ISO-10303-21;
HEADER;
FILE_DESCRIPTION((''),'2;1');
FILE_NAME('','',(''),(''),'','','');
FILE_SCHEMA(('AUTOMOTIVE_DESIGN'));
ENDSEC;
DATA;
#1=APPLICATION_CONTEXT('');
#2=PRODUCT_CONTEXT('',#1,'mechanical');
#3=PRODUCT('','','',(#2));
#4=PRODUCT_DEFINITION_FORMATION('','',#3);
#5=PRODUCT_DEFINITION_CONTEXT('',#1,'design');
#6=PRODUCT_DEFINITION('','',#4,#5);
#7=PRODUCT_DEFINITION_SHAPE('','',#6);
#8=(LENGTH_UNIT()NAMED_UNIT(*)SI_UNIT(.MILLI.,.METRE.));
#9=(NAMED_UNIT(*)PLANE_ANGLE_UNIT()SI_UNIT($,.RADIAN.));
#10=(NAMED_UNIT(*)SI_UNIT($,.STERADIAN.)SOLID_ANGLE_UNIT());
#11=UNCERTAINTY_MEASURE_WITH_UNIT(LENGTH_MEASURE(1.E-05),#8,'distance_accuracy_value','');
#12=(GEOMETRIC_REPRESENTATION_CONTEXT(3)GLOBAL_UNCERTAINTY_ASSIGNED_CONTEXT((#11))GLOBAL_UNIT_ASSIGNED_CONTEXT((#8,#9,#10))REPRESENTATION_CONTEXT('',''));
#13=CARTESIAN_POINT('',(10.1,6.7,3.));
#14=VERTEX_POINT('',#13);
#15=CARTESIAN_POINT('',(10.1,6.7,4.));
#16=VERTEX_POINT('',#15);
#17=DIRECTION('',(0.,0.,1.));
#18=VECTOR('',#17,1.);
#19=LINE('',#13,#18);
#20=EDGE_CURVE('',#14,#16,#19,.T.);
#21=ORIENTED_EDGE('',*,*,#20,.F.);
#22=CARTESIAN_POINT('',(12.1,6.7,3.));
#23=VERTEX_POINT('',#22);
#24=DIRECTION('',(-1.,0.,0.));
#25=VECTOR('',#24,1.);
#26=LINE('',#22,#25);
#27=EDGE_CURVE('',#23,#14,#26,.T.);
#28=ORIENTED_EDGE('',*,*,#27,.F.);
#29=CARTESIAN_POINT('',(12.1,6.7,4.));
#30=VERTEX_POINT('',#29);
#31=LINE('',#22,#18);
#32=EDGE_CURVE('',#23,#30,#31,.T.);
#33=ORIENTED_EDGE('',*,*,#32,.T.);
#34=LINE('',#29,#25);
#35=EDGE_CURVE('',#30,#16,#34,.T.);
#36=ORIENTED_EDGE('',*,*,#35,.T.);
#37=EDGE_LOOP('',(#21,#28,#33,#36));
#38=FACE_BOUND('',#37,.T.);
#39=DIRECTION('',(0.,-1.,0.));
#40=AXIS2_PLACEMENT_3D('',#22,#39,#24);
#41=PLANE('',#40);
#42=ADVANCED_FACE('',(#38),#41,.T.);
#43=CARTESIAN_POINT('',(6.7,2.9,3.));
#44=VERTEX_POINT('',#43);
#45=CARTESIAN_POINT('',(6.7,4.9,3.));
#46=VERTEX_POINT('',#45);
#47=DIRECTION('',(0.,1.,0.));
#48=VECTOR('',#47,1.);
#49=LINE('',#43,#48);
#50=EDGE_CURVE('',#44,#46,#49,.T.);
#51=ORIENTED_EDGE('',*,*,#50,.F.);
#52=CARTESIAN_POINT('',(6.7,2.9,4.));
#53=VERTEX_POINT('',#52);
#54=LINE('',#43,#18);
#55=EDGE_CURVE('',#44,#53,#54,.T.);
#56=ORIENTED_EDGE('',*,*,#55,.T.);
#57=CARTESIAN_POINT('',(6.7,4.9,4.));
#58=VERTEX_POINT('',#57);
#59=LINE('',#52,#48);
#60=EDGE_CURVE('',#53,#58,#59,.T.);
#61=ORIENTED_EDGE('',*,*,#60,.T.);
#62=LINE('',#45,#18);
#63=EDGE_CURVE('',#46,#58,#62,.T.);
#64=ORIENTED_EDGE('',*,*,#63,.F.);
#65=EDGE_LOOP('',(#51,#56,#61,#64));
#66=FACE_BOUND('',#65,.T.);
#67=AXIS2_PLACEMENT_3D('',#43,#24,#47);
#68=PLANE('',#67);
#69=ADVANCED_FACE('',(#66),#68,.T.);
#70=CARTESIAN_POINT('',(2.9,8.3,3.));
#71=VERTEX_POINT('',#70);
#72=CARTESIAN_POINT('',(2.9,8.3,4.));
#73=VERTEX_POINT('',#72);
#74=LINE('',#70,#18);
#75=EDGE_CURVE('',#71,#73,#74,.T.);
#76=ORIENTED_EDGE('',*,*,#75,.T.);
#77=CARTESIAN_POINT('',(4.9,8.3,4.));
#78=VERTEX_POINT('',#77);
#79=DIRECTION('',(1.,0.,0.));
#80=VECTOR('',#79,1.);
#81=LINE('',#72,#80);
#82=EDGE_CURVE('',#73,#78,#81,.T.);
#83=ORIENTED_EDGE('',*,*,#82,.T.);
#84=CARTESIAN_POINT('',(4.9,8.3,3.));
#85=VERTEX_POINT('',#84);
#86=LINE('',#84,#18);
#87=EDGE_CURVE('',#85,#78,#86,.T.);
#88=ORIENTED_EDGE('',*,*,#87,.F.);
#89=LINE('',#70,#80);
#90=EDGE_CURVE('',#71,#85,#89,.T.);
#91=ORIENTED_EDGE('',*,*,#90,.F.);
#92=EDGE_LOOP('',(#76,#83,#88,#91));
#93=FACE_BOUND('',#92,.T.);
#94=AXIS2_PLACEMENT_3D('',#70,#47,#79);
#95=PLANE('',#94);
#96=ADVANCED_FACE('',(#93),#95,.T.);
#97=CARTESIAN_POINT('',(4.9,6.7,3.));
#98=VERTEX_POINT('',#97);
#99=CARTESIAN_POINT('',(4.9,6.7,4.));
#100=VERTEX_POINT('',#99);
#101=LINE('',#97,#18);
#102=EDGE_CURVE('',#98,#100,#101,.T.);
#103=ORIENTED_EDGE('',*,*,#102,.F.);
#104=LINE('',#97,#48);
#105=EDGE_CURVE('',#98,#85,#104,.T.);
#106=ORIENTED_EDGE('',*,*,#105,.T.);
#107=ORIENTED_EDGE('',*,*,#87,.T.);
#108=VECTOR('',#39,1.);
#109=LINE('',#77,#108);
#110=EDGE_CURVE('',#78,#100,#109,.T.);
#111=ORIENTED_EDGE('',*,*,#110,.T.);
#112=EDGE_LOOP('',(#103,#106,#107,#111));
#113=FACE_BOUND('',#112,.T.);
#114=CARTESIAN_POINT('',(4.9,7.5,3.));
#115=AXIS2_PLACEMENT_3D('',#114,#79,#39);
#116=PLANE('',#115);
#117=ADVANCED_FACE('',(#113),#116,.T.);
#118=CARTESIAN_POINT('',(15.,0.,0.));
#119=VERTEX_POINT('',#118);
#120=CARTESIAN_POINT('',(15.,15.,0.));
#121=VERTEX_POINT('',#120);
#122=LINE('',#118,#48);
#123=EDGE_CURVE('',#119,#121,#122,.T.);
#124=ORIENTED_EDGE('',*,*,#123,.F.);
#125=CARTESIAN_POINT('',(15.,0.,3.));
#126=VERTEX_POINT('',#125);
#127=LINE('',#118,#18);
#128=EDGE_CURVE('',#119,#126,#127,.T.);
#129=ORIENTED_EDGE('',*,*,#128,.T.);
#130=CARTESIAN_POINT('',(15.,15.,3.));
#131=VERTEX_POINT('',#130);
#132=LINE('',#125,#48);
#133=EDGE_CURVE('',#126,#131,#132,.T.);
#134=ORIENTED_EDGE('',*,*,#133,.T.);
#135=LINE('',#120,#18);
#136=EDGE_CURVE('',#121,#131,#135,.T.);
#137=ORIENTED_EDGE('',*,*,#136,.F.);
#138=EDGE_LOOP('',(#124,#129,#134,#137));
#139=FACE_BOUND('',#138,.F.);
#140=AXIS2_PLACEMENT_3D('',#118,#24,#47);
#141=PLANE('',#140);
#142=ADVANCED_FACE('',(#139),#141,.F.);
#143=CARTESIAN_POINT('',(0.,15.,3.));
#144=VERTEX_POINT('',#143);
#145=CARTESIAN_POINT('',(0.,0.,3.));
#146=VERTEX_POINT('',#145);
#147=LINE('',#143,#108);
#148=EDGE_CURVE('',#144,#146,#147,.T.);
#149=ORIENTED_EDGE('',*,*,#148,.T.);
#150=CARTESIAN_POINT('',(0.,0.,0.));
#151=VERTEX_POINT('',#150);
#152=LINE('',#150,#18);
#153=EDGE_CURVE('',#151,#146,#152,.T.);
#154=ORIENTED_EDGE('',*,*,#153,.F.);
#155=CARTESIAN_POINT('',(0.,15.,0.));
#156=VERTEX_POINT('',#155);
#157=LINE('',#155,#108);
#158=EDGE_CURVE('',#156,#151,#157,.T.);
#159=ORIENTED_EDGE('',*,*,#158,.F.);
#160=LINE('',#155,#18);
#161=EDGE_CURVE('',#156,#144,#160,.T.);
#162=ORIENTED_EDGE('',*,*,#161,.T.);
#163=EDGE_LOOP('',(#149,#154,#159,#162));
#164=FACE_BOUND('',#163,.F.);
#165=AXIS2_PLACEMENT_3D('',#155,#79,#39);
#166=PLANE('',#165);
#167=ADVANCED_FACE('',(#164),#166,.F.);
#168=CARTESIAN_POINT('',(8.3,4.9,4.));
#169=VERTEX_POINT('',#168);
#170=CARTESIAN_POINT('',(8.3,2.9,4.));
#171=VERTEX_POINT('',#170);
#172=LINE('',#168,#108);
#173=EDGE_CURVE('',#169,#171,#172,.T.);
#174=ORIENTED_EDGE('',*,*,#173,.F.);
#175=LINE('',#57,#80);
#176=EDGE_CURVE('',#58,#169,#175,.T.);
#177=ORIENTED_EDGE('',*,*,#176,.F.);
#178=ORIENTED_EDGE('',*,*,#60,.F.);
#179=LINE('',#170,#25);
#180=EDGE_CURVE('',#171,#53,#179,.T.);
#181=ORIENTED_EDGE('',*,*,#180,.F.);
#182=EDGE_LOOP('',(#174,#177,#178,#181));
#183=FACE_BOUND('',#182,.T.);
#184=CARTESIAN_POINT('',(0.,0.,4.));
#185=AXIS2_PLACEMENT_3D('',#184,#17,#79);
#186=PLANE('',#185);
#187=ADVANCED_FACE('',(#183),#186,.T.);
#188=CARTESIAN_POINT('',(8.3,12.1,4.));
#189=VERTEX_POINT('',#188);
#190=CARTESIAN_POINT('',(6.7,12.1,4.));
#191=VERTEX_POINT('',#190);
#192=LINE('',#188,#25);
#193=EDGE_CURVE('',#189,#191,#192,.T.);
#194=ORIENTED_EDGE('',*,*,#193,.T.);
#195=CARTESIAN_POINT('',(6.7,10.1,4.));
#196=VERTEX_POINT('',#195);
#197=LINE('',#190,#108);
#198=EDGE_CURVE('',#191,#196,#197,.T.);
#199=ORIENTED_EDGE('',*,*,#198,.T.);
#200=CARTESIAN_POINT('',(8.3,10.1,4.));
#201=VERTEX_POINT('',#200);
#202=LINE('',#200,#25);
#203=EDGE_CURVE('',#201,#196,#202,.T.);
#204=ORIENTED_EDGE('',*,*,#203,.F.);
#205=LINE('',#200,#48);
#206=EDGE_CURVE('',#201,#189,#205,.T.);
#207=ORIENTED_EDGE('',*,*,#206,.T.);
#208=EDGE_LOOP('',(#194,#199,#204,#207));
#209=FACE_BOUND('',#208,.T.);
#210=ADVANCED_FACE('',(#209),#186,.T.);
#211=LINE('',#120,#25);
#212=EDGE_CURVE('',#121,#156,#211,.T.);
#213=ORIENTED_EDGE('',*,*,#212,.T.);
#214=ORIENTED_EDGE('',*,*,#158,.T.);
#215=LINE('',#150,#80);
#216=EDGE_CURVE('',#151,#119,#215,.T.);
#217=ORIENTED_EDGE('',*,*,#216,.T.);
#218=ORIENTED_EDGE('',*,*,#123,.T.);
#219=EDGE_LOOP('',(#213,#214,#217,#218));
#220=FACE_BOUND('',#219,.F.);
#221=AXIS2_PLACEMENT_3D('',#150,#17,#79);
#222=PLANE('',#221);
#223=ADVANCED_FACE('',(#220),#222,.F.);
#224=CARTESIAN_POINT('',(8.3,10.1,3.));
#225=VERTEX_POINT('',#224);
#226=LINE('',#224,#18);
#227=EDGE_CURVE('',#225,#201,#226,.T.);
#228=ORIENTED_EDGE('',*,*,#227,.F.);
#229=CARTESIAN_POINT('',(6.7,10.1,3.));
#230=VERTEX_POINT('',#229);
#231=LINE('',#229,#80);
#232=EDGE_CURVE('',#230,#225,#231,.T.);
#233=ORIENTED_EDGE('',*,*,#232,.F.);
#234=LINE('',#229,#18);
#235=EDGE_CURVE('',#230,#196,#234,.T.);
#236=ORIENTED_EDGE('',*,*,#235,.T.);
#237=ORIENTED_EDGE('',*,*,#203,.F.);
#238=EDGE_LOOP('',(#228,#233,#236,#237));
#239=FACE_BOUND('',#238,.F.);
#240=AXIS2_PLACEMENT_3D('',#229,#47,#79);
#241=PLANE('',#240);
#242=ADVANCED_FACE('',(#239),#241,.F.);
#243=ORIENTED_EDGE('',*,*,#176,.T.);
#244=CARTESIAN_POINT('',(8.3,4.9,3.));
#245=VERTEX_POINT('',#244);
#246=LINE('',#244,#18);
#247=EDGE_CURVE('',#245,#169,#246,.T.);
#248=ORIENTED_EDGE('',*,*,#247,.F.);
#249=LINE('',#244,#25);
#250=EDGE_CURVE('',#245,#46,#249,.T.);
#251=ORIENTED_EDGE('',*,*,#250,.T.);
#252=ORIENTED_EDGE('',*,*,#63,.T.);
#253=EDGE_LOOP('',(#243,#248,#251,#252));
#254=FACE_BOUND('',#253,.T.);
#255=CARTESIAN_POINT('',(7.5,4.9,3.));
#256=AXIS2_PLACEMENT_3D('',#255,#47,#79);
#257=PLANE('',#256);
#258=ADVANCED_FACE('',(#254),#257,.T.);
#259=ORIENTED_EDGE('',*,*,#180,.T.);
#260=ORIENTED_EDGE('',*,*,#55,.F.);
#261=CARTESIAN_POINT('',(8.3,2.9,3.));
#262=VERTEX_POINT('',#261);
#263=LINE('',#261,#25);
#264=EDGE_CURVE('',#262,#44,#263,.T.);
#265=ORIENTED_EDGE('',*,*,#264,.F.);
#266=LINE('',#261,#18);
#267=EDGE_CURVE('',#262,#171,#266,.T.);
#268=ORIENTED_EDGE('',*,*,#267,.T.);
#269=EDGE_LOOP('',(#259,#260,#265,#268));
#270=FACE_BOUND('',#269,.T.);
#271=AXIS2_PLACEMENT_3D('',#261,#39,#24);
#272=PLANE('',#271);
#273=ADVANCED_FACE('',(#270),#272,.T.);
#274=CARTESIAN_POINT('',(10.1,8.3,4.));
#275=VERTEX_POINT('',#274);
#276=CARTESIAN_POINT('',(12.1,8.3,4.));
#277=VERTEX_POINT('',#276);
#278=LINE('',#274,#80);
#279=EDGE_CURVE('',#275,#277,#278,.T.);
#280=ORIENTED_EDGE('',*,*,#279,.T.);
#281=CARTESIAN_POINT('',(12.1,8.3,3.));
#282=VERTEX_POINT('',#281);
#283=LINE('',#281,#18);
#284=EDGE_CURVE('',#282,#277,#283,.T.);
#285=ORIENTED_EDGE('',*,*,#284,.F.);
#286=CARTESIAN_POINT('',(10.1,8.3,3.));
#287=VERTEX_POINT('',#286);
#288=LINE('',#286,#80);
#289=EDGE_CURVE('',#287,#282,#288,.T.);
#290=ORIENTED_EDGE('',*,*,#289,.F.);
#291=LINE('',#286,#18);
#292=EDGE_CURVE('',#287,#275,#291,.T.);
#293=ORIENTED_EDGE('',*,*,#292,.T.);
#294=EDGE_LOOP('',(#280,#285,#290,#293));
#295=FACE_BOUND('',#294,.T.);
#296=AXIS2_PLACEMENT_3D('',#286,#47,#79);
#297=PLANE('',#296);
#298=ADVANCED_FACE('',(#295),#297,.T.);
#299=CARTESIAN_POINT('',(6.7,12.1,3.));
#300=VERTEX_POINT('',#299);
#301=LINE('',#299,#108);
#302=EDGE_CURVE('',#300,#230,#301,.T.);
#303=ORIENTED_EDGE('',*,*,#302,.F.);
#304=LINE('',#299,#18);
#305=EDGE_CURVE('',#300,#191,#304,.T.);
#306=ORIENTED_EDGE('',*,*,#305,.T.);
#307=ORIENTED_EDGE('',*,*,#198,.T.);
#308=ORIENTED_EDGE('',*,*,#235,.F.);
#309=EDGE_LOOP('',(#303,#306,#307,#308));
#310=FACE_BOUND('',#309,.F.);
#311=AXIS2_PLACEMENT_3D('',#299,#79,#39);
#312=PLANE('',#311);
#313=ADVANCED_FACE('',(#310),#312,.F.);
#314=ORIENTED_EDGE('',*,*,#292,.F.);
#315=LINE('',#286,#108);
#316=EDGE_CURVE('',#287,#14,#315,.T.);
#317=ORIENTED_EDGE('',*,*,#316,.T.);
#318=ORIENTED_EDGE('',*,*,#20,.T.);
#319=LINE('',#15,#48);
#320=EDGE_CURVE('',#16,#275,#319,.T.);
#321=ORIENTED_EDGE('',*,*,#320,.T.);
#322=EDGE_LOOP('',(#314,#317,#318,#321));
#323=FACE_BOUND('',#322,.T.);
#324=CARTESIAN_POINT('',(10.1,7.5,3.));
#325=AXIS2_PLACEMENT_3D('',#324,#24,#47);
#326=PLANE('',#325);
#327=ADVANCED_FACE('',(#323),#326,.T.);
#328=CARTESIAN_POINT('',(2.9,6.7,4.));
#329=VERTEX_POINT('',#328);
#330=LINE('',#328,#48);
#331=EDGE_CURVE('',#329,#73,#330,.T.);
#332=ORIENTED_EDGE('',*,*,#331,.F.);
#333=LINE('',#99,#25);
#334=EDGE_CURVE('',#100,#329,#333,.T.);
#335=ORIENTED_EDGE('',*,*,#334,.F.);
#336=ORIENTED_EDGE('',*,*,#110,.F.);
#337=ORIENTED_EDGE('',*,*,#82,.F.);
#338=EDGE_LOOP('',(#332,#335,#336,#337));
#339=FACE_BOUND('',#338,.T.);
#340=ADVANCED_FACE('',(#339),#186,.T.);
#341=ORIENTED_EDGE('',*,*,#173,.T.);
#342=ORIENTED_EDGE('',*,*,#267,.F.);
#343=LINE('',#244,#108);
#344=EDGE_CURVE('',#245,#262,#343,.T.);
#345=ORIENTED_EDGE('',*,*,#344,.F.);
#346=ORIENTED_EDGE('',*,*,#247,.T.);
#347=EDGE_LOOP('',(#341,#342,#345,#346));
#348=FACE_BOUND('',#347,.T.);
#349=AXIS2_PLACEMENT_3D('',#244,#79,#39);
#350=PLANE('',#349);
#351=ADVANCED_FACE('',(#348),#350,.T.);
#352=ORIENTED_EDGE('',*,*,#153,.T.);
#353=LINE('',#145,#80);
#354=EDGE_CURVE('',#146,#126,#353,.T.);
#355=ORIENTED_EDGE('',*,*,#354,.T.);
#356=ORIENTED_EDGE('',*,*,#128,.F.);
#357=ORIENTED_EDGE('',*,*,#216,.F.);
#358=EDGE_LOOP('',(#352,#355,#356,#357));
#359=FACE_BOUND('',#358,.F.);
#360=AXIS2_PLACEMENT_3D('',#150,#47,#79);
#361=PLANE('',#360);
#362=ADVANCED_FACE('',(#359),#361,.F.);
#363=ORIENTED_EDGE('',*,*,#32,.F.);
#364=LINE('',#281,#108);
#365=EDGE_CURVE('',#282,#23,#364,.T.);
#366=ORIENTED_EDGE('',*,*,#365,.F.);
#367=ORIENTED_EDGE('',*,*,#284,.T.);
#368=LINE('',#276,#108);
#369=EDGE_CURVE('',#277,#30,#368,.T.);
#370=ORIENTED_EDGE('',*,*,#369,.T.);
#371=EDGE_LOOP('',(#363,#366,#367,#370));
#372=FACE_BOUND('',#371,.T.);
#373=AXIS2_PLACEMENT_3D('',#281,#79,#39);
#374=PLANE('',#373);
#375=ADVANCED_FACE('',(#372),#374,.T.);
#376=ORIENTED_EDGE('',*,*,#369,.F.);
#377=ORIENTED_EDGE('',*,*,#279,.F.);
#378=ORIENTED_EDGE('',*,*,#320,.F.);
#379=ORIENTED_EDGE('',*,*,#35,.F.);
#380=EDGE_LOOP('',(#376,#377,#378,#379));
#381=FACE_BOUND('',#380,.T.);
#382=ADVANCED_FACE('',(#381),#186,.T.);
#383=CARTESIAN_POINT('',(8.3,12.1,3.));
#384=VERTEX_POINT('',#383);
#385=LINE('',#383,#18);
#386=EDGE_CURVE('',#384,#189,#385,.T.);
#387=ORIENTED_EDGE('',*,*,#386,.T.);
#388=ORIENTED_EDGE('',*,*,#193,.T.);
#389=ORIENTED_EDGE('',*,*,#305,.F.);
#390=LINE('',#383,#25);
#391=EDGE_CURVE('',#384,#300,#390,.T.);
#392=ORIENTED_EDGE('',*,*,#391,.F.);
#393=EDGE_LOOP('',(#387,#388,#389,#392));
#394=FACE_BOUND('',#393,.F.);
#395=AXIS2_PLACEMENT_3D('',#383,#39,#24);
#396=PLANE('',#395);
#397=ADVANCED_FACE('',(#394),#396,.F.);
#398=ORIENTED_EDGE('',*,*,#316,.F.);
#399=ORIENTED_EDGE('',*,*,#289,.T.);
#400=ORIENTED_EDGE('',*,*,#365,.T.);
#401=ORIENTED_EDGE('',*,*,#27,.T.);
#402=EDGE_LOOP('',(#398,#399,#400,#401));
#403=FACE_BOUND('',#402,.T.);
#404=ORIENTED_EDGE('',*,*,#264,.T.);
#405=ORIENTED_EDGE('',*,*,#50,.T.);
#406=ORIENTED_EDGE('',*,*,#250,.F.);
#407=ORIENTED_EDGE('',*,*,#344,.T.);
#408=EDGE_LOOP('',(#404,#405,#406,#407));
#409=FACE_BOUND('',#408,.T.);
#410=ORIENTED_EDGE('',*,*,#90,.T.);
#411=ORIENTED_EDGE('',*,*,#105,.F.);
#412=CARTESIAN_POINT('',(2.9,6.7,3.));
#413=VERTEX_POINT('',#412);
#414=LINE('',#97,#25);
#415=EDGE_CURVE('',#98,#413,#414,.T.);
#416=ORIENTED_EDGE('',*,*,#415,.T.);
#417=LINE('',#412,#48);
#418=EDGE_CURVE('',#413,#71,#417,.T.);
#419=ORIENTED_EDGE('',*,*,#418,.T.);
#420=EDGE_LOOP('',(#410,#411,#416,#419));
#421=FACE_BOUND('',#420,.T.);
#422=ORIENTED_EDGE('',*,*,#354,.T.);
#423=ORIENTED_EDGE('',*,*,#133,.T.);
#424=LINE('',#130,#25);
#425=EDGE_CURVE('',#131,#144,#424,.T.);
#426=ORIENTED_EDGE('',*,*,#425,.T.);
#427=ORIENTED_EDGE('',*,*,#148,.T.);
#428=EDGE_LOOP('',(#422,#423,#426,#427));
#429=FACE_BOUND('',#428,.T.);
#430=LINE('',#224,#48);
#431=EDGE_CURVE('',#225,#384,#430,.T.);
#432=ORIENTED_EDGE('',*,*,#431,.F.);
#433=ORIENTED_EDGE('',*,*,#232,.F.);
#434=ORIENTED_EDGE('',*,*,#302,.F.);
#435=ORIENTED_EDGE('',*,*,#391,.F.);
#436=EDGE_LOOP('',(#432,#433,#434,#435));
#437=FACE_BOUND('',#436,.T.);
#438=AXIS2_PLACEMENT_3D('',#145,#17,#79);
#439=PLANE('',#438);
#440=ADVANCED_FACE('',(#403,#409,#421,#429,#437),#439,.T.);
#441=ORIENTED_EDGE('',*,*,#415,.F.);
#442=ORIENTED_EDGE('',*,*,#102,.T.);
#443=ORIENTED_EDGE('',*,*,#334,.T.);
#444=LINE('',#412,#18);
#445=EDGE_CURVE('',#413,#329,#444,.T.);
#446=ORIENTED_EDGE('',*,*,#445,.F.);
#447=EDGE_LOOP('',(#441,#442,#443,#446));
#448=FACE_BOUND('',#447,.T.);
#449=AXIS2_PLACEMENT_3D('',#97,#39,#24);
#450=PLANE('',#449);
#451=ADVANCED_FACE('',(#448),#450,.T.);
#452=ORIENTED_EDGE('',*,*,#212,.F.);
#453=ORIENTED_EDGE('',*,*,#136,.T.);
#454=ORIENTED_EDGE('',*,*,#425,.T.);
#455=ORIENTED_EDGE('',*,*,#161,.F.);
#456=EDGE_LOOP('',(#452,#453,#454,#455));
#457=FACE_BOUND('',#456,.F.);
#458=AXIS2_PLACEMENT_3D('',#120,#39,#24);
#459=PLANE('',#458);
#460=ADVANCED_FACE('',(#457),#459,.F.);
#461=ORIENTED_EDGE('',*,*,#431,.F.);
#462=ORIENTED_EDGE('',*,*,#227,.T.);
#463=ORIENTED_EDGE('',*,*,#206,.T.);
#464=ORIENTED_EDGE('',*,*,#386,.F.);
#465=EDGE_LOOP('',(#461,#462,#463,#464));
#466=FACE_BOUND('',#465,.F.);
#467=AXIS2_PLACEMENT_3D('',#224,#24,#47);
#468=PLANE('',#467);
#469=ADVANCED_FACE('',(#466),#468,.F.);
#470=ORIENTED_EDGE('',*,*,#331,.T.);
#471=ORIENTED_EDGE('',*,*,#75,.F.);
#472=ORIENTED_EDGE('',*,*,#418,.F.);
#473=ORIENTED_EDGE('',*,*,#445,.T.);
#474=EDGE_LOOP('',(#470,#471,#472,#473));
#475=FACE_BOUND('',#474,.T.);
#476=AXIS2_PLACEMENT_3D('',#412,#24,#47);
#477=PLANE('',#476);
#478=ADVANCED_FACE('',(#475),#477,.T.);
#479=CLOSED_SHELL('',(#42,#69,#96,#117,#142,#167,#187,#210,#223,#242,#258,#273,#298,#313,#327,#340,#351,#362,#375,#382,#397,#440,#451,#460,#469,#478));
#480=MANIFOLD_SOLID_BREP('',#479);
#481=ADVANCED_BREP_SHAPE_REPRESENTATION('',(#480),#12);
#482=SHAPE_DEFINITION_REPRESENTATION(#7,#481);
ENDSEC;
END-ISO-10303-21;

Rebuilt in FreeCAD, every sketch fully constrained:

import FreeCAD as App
import Part
import Sketcher

doc = App.newDocument("Part")
body = doc.addObject("PartDesign::Body", "Body")

sketch1 = body.newObject("Sketcher::SketchObject", "Sketch")
sketch1.AttachmentSupport = (doc.getObject("XY_Plane"), [""])
sketch1.MapMode = "FlatFace"
sketch1.addGeometry([
    Part.LineSegment(App.Vector(0, 15, 0), App.Vector(0, 0, 0)),
    Part.LineSegment(App.Vector(0, 0, 0), App.Vector(15, 0, 0)),
    Part.LineSegment(App.Vector(15, 0, 0), App.Vector(15, 15, 0)),
    Part.LineSegment(App.Vector(15, 15, 0), App.Vector(0, 15, 0)),
], False)
sketch1.addConstraint([
    Sketcher.Constraint("Coincident", 0, 2, 1, 1),
    Sketcher.Constraint("Coincident", 1, 2, 2, 1),
    Sketcher.Constraint("Coincident", 2, 2, 3, 1),
    Sketcher.Constraint("Coincident", 3, 2, 0, 1),
    Sketcher.Constraint("Vertical", 0),
    Sketcher.Constraint("Horizontal", 1),
    Sketcher.Constraint("Vertical", 2),
    Sketcher.Constraint("Horizontal", 3),
    Sketcher.Constraint("Coincident", 0, 2, -1, 1),
    Sketcher.Constraint("Equal", 3, 0),
    Sketcher.Constraint("DistanceX", 1, 1, 1, 2, 15.0),
])
pad1 = body.newObject("PartDesign::Pad", "Pad")
pad1.Profile = sketch1
pad1.Length = 3

sketch2 = body.newObject("Sketcher::SketchObject", "Sketch001")
sketch2.AttachmentSupport = (doc.getObject("XY_Plane"), [""])
sketch2.MapMode = "FlatFace"
sketch2.AttachmentOffset = App.Placement(App.Vector(0, 0, 3), App.Rotation())
sketch2.addGeometry([
    Part.LineSegment(App.Vector(8.3, 4.9, 0), App.Vector(6.7, 4.9, 0)),
    Part.LineSegment(App.Vector(6.7, 4.9, 0), App.Vector(6.7, 2.9, 0)),
    Part.LineSegment(App.Vector(6.7, 2.9, 0), App.Vector(8.3, 2.9, 0)),
    Part.LineSegment(App.Vector(8.3, 2.9, 0), App.Vector(8.3, 4.9, 0)),
    Part.LineSegment(App.Vector(4.9, 6.7, 0), App.Vector(4.9, 8.3, 0)),
    Part.LineSegment(App.Vector(4.9, 8.3, 0), App.Vector(2.9, 8.3, 0)),
    Part.LineSegment(App.Vector(2.9, 8.3, 0), App.Vector(2.9, 6.7, 0)),
    Part.LineSegment(App.Vector(2.9, 6.7, 0), App.Vector(4.9, 6.7, 0)),
    Part.LineSegment(App.Vector(10.1, 8.3, 0), App.Vector(10.1, 6.7, 0)),
    Part.LineSegment(App.Vector(10.1, 6.7, 0), App.Vector(12.1, 6.7, 0)),
    Part.LineSegment(App.Vector(12.1, 6.7, 0), App.Vector(12.1, 8.3, 0)),
    Part.LineSegment(App.Vector(12.1, 8.3, 0), App.Vector(10.1, 8.3, 0)),
    Part.LineSegment(App.Vector(6.7, 10.1, 0), App.Vector(8.3, 10.1, 0)),
    Part.LineSegment(App.Vector(8.3, 10.1, 0), App.Vector(8.3, 12.1, 0)),
    Part.LineSegment(App.Vector(8.3, 12.1, 0), App.Vector(6.7, 12.1, 0)),
    Part.LineSegment(App.Vector(6.7, 12.1, 0), App.Vector(6.7, 10.1, 0)),
], False)
sketch2.addConstraint([
    Sketcher.Constraint("Coincident", 0, 2, 1, 1),
    Sketcher.Constraint("Coincident", 1, 2, 2, 1),
    Sketcher.Constraint("Coincident", 2, 2, 3, 1),
    Sketcher.Constraint("Coincident", 3, 2, 0, 1),
    Sketcher.Constraint("Coincident", 4, 2, 5, 1),
    Sketcher.Constraint("Coincident", 5, 2, 6, 1),
    Sketcher.Constraint("Coincident", 6, 2, 7, 1),
    Sketcher.Constraint("Coincident", 7, 2, 4, 1),
    Sketcher.Constraint("Coincident", 8, 2, 9, 1),
    Sketcher.Constraint("Coincident", 9, 2, 10, 1),
    Sketcher.Constraint("Coincident", 10, 2, 11, 1),
    Sketcher.Constraint("Coincident", 11, 2, 8, 1),
    Sketcher.Constraint("Coincident", 12, 2, 13, 1),
    Sketcher.Constraint("Coincident", 13, 2, 14, 1),
    Sketcher.Constraint("Coincident", 14, 2, 15, 1),
    Sketcher.Constraint("Coincident", 15, 2, 12, 1),
    Sketcher.Constraint("Horizontal", 0),
    Sketcher.Constraint("Vertical", 1),
    Sketcher.Constraint("Horizontal", 2),
    Sketcher.Constraint("Vertical", 3),
    Sketcher.Constraint("Vertical", 4),
    Sketcher.Constraint("Horizontal", 5),
    Sketcher.Constraint("Vertical", 6),
    Sketcher.Constraint("Horizontal", 7),
    Sketcher.Constraint("Vertical", 8),
    Sketcher.Constraint("Horizontal", 9),
    Sketcher.Constraint("Vertical", 10),
    Sketcher.Constraint("Horizontal", 11),
    Sketcher.Constraint("Horizontal", 12),
    Sketcher.Constraint("Vertical", 13),
    Sketcher.Constraint("Horizontal", 14),
    Sketcher.Constraint("Vertical", 15),
    Sketcher.Constraint("Horizontal", 7, 2, 8, 2),
    Sketcher.Constraint("Horizontal", 5, 2, 10, 2),
    Sketcher.Constraint("Vertical", 3, 2, 12, 2),
    Sketcher.Constraint("Vertical", 1, 2, 14, 2),
    Sketcher.Constraint("Equal", 7, 9),
    Sketcher.Constraint("Equal", 11, 1),
    Sketcher.Constraint("Equal", 14, 4),
    Sketcher.Constraint("Equal", 3, 13),
    Sketcher.Constraint("DistanceX", 5, 2, 5, 1, 2.0),
    Sketcher.Constraint("DistanceX", 0, 2, 0, 1, 1.6),
    Sketcher.Constraint("DistanceX", -1, 1, 0, 2, 6.7),
    Sketcher.Constraint("DistanceY", -1, 1, 0, 2, 4.9),
    Sketcher.Constraint("DistanceX", -1, 1, 4, 2, 4.9),
    Sketcher.Constraint("DistanceY", -1, 1, 4, 2, 8.3),
    Sketcher.Constraint("DistanceX", -1, 1, 8, 2, 10.1),
    Sketcher.Constraint("DistanceY", -1, 1, 12, 2, 10.1),
])
pad2 = body.newObject("PartDesign::Pad", "Pad001")
pad2.Profile = sketch2
pad2.Length = 1

doc.recompute()
